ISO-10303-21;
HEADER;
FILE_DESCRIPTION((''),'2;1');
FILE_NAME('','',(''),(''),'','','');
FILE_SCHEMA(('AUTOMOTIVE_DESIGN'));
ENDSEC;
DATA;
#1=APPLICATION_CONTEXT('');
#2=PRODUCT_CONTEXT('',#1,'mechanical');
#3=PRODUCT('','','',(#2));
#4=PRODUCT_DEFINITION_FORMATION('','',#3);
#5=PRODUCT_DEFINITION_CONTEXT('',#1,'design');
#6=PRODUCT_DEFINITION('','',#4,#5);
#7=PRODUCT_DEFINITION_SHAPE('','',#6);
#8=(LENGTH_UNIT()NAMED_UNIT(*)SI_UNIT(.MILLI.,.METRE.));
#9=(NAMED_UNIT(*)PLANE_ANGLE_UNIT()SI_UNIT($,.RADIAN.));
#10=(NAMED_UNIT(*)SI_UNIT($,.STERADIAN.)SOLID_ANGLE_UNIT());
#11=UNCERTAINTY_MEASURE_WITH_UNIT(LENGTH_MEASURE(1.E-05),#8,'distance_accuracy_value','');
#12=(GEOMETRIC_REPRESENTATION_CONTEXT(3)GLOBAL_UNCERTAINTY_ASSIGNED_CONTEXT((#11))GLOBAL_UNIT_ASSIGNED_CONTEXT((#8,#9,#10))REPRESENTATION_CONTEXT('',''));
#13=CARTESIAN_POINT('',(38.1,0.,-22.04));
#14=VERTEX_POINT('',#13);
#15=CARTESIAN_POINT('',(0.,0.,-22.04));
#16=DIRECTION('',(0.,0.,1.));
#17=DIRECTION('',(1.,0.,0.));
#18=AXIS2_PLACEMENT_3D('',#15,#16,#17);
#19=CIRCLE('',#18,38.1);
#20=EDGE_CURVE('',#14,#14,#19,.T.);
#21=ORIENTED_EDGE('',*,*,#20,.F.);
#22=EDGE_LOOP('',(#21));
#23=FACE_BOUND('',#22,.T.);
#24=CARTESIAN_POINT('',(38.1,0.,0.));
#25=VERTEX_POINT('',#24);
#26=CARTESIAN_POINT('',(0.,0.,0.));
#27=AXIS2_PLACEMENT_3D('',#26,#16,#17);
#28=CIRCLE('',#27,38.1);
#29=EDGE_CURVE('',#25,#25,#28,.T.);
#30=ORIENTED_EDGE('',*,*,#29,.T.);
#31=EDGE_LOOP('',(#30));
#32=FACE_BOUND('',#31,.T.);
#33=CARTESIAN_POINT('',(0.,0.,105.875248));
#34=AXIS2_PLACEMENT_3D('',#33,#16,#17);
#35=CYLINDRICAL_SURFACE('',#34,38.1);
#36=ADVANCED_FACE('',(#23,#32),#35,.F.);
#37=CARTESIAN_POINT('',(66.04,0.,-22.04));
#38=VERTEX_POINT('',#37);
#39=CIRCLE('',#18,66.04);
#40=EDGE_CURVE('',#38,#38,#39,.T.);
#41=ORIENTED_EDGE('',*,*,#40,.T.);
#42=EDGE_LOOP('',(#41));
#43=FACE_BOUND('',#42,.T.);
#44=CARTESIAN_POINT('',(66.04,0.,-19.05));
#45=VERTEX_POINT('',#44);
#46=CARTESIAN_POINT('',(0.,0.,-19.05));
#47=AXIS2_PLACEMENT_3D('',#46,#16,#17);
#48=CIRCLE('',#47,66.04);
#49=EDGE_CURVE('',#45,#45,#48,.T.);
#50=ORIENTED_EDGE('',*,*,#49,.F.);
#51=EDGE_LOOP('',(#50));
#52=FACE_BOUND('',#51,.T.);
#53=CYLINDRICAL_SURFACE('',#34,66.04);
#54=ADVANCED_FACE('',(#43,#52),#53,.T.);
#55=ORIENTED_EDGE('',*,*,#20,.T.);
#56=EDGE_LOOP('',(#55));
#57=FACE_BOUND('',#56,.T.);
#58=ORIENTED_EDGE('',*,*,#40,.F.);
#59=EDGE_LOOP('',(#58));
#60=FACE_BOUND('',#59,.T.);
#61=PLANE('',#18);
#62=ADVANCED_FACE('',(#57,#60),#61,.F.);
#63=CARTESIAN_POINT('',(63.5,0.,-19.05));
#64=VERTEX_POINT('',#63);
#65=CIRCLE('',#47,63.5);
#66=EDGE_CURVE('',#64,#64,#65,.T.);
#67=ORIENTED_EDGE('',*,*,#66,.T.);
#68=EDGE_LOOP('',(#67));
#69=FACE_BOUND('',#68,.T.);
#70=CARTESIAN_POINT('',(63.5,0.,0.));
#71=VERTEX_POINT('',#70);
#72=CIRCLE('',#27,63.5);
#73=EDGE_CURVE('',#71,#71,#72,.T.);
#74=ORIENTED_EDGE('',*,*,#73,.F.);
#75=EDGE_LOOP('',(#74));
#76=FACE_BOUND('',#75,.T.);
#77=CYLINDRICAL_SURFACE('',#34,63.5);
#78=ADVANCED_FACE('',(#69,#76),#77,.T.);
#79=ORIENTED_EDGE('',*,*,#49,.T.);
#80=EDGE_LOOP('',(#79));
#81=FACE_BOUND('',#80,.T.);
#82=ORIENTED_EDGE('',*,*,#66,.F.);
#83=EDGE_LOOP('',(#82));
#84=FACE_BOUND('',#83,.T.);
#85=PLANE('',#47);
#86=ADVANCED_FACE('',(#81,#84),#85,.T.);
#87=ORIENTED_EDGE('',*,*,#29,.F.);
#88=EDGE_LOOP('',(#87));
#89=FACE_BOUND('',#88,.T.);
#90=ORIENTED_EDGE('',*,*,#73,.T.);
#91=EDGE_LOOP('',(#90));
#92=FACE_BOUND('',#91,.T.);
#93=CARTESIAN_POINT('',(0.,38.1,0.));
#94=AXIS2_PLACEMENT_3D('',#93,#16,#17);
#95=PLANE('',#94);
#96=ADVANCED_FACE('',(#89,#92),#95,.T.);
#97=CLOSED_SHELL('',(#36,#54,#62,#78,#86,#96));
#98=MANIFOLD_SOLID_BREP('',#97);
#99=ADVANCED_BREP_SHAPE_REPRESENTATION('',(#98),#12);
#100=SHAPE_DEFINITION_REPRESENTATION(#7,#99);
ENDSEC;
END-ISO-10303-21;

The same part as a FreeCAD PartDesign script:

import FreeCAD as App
import Part
import Sketcher
from FreeCAD import Vector
Q = App.Units.Quantity


def add_polygon(sketch, points):
    """Adds a closed chain of lines whose ends are joined by coincident constraints."""
    first, n = sketch.GeometryCount, len(points)
    for a, b in zip(points, points[1:] + points[:1]):
        sketch.addGeometry(Part.LineSegment(App.Vector(*a, 0), App.Vector(*b, 0)), False)
    for i in range(n):
        sketch.addConstraint(Sketcher.Constraint("Coincident", first + i, 2, first + (i + 1) % n, 1))

doc = App.newDocument("Part")
body = doc.addObject("PartDesign::Body", "Body")

# Sketch on YZ plane
sketch1 = body.newObject("Sketcher::SketchObject", "Sketch")
sketch1.AttachmentSupport = (doc.getObject("YZ_Plane"), [""])
sketch1.MapMode = "FlatFace"
add_polygon(sketch1, [(63.5, 0), (38.1, 0), (38.1, -22.04), (66.04, -22.04), (66.04, -19.05), (63.5, -19.05)])  # lines 0-5
sketch1.addConstraint([
    Sketcher.Constraint("Horizontal", 0),
    Sketcher.Constraint("Vertical", 1),
    Sketcher.Constraint("Horizontal", 2),
    Sketcher.Constraint("Vertical", 3),
    Sketcher.Constraint("Horizontal", 4),
    Sketcher.Constraint("Vertical", 5),
    Sketcher.Constraint("PointOnObject", 0, 2, -1),
    Sketcher.Constraint("DistanceX", 0, 2, 0, 1, Q("1 in")),
    Sketcher.Constraint("DistanceX", 2, 1, 2, 2, Q("1.1 in")),
    Sketcher.Constraint("DistanceY", 5, 1, 5, 2, Q("0.75 in")),
    Sketcher.Constraint("DistanceX", -1, 1, 0, 2, Q("1.5 in")),
    Sketcher.Constraint("DistanceY", 1, 2, 1, 1, Q("22.04 mm")),
])
revolution = body.newObject("PartDesign::Revolution", "Revolution")
revolution.Profile = sketch1
revolution.ReferenceAxis = (sketch1, ["V_Axis"])
revolution.Angle = 360

doc.recompute()
